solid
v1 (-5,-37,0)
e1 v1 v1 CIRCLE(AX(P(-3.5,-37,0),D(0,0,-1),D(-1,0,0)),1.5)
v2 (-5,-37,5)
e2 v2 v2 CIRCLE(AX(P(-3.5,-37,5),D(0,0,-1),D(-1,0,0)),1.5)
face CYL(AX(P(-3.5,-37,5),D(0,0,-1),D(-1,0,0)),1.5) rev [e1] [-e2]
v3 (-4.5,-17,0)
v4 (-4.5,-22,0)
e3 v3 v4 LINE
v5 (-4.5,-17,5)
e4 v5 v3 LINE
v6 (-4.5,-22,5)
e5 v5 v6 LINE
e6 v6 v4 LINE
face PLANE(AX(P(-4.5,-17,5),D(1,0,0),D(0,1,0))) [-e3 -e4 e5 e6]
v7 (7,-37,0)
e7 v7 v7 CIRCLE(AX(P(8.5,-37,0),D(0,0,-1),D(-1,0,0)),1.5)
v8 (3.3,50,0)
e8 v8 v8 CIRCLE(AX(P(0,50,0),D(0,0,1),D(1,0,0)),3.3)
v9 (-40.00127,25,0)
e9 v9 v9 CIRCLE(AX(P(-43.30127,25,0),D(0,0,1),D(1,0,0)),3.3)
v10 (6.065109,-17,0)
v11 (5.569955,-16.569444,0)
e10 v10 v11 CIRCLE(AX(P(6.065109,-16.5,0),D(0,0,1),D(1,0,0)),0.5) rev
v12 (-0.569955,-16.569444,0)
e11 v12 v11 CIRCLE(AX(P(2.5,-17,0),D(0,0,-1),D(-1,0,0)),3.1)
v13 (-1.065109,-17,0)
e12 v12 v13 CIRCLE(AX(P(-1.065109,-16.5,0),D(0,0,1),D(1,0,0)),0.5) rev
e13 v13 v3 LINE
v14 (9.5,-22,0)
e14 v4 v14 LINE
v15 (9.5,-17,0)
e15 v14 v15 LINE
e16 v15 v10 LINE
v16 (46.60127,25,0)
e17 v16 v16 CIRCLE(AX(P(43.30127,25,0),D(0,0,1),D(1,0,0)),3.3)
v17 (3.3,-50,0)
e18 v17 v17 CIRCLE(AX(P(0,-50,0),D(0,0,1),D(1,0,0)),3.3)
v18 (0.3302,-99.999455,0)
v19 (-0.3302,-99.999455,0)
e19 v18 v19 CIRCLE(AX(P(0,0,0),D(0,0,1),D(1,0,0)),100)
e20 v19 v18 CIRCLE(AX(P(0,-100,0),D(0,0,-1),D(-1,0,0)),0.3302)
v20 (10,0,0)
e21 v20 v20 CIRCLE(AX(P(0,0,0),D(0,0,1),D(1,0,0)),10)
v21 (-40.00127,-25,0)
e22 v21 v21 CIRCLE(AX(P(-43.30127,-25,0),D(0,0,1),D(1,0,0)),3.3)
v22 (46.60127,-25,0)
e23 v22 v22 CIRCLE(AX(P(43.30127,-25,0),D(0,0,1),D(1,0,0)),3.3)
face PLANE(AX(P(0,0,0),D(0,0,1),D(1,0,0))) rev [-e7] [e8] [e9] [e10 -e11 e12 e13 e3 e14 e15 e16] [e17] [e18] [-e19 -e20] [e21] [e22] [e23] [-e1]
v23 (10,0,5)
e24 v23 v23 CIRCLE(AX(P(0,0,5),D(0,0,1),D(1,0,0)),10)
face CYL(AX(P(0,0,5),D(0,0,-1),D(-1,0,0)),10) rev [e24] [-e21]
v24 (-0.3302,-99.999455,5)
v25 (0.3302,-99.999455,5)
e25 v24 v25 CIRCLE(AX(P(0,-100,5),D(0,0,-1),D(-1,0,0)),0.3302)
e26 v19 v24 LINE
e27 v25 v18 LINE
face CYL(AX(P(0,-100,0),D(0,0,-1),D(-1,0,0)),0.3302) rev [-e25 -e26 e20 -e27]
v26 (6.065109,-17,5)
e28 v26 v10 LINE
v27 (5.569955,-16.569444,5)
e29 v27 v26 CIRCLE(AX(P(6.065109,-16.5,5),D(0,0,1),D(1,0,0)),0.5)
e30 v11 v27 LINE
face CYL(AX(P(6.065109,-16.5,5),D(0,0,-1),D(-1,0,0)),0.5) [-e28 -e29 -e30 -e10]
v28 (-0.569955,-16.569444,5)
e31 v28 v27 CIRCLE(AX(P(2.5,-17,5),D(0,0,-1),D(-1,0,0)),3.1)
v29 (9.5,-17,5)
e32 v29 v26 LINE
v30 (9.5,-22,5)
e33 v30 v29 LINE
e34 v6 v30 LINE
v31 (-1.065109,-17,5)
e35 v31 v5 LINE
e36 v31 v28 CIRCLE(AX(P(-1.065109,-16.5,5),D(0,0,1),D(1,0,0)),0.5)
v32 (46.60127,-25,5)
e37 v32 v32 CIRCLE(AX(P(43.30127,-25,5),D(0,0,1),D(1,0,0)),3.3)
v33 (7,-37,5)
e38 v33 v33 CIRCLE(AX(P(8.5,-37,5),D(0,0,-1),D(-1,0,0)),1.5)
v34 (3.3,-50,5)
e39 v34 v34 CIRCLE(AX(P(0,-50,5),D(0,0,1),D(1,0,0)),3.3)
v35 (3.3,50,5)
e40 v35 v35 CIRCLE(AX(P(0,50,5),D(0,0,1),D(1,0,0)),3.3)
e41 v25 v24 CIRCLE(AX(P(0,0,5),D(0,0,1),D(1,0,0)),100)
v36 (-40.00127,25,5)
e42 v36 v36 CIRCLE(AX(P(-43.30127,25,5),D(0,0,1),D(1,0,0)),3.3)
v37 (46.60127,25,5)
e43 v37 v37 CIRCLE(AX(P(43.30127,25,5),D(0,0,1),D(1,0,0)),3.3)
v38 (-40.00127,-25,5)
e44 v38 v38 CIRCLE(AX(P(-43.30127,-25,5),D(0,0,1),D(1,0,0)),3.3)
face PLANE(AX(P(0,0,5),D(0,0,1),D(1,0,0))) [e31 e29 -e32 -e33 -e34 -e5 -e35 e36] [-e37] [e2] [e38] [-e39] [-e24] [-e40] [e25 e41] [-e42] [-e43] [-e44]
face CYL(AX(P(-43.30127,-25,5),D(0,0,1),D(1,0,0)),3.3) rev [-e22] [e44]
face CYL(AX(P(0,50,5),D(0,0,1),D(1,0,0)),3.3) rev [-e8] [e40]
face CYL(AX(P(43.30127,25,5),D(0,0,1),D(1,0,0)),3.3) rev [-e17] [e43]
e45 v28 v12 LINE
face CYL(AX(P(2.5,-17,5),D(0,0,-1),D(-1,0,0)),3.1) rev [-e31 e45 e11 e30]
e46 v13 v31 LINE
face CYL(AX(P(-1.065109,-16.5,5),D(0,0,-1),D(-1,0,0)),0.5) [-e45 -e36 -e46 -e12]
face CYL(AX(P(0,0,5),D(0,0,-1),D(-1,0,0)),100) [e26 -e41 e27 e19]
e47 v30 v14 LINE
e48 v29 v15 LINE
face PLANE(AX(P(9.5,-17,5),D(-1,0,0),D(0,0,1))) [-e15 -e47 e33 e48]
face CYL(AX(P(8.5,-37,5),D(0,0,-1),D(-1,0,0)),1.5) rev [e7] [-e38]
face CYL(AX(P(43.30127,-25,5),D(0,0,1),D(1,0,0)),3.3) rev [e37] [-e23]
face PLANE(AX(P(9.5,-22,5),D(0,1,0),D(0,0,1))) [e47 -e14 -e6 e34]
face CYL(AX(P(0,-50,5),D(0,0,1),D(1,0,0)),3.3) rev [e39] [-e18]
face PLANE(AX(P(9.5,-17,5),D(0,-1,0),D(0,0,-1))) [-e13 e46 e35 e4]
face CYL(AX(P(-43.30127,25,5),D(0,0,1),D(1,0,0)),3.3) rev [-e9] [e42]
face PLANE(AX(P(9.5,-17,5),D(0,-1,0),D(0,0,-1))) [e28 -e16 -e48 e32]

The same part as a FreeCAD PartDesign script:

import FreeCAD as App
import Part
import Sketcher
from FreeCAD import Vector


def edges_at(feature, points):
    """Names of the edges that pass closest to the given points."""
    edges = feature.Shape.Edges
    near = lambda p: min(range(len(edges)), key=lambda i: edges[i].distToShape(Part.Vertex(*p))[0])
    return sorted({f"Edge{near(p) + 1}" for p in points})


def add_polygon(sketch, points):
    """Adds a closed chain of lines whose ends are joined by coincident constraints."""
    first, n = sketch.GeometryCount, len(points)
    for a, b in zip(points, points[1:] + points[:1]):
        sketch.addGeometry(Part.LineSegment(App.Vector(*a, 0), App.Vector(*b, 0)), False)
    for i in range(n):
        sketch.addConstraint(Sketcher.Constraint("Coincident", first + i, 2, first + (i + 1) % n, 1))

doc = App.newDocument("Part")
body = doc.addObject("PartDesign::Body", "Body")

# Sketch on XY plane
sketch1 = body.newObject("Sketcher::SketchObject", "Sketch")
sketch1.AttachmentSupport = (doc.getObject("XY_Plane"), [""])
sketch1.MapMode = "FlatFace"
sketch1.addGeometry(Part.Circle(Vector(0, 0, 0), Vector(0, 0, 1), 100), False)
sketch1.addConstraint(Sketcher.Constraint("Coincident", 0, 3, -1, 1))
sketch1.addConstraint(Sketcher.Constraint("Diameter", 0, 200.0))
pad1 = body.newObject("PartDesign::Pad", "Pad")
pad1.Profile = sketch1
pad1.Length = 5

# Sketch on XY plane
sketch2 = body.newObject("Sketcher::SketchObject", "Sketch001")
sketch2.AttachmentSupport = (doc.getObject("XY_Plane"), [""])
sketch2.MapMode = "FlatFace"
sketch2.addGeometry(Part.Circle(Vector(0, 50, 0), Vector(0, 0, 1), 3), False)
sketch2.addConstraint(Sketcher.Constraint("PointOnObject", 0, 3, -2))
sketch2.addConstraint(Sketcher.Constraint("Diameter", 0, 6.0))
sketch2.addConstraint(Sketcher.Constraint("DistanceY", -1, 1, 0, 3, 50.0))
pocket1 = body.newObject("PartDesign::Pocket", "Pocket")
pocket1.Profile = sketch2
pocket1.Type = "ThroughAll"
pocket1.Reversed = True
doc.recompute()

polarpattern = body.newObject("PartDesign::PolarPattern", "PolarPattern")
polarpattern.Originals = [pocket1]
polarpattern.Axis = (doc.getObject("Z_Axis"), [""])
polarpattern.Angle = 360
polarpattern.Occurrences = 6
body.Tip = polarpattern

# Sketch on XY plane
sketch3 = body.newObject("Sketcher::SketchObject", "Sketch002")
sketch3.AttachmentSupport = (doc.getObject("XY_Plane"), [""])
sketch3.MapMode = "FlatFace"
sketch3.AttachmentOffset = App.Placement(Vector(0, 0, 5), App.Rotation())
sketch3.addGeometry(Part.Circle(Vector(0, 50, 0), Vector(0, 0, 1), 3.3), False)
sketch3.addGeometry(Part.Circle(Vector(43.3, 25, 0), Vector(0, 0, 1), 3.3), False)
sketch3.addGeometry(Part.Circle(Vector(43.3, -25, 0), Vector(0, 0, 1), 3.3), False)
sketch3.addGeometry(Part.Circle(Vector(0, -50, 0), Vector(0, 0, 1), 3.3), False)
sketch3.addGeometry(Part.Circle(Vector(-43.3, -25, 0), Vector(0, 0, 1), 3.3), False)
sketch3.addGeometry(Part.Circle(Vector(-43.3, 25, 0), Vector(0, 0, 1), 3.3), False)
sketch3.addConstraint(Sketcher.Constraint("Equal", 0, 1))
sketch3.addConstraint(Sketcher.Constraint("Equal", 1, 2))
sketch3.addConstraint(Sketcher.Constraint("Equal", 2, 3))
sketch3.addConstraint(Sketcher.Constraint("Equal", 3, 4))
sketch3.addConstraint(Sketcher.Constraint("Equal", 4, 5))
sketch3.addConstraint(Sketcher.Constraint("Symmetric", 0, 3, 3, 3, -1, 1))
sketch3.addConstraint(Sketcher.Constraint("Symmetric", 1, 3, 4, 3, -1, 1))
sketch3.addConstraint(Sketcher.Constraint("Symmetric", 2, 3, 5, 3, -1, 1))
sketch3.addConstraint(Sketcher.Constraint("Symmetric", 2, 3, 4, 3, -2))
sketch3.addConstraint(Sketcher.Constraint("PointOnObject", 0, 3, -2))
sketch3.addConstraint(Sketcher.Constraint("Diameter", 0, 6.6))
sketch3.addConstraint(Sketcher.Constraint("DistanceY", -1, 1, 0, 3, 50.0))
sketch3.addConstraint(Sketcher.Constraint("DistanceY", -1, 1, 1, 3, 25.0))
sketch3.addConstraint(Sketcher.Constraint("DistanceX", -1, 1, 1, 3, 43.30127))
doc.recompute()
hole = body.newObject("PartDesign::Hole", "Hole")
hole.Profile = sketch3
hole.ThreadType = "None"
hole.Diameter = 6.6
hole.DepthType = "ThroughAll"

# Sketch on XY plane
sketch4 = body.newObject("Sketcher::SketchObject", "Sketch003")
sketch4.AttachmentSupport = (doc.getObject("XY_Plane"), [""])
sketch4.MapMode = "FlatFace"
add_polygon(sketch4, [(-4, -17), (-4, -22), (10, -22), (10, -17)])  # lines 0-3
sketch4.addConstraint(Sketcher.Constraint("Vertical", 0))
sketch4.addConstraint(Sketcher.Constraint("Horizontal", 1))
sketch4.addConstraint(Sketcher.Constraint("Vertical", 2))
sketch4.addConstraint(Sketcher.Constraint("Horizontal", 3))
sketch4.addConstraint(Sketcher.Constraint("DistanceX", 1, 1, 1, 2, 14.0))
sketch4.addConstraint(Sketcher.Constraint("DistanceY", 0, 2, 0, 1, 5.0))
sketch4.addConstraint(Sketcher.Constraint("DistanceY", 0, 2, -1, 1, 22.0))
sketch4.addConstraint(Sketcher.Constraint("DistanceX", 0, 2, -1, 1, 4.5))
pocket2 = body.newObject("PartDesign::Pocket", "Pocket001")
pocket2.Profile = sketch4
pocket2.Type = "ThroughAll"
pocket2.Reversed = True

# Sketch on XY plane
sketch5 = body.newObject("Sketcher::SketchObject", "Sketch004")
sketch5.AttachmentSupport = (doc.getObject("XY_Plane"), [""])
sketch5.MapMode = "FlatFace"
sketch5.addGeometry(Part.Circle(Vector(2.5, 4, 0), Vector(0, 0, 1), 1), False)
sketch5.addGeometry(Part.Circle(Vector(2.5, -17, 0), Vector(0, 0, 1), 3.1), False)
sketch5.addConstraint(Sketcher.Constraint("Vertical", 0, 3, 1, 3))
sketch5.addConstraint(Sketcher.Constraint("Diameter", 0, 2.0))
sketch5.addConstraint(Sketcher.Constraint("Diameter", 1, 6.2))
sketch5.addConstraint(Sketcher.Constraint("DistanceY", -1, 1, 0, 3, 4.0))
sketch5.addConstraint(Sketcher.Constraint("DistanceY", 1, 3, -1, 1, 17.0))
sketch5.addConstraint(Sketcher.Constraint("DistanceX", -1, 1, 0, 3, 2.5))
pocket3 = body.newObject("PartDesign::Pocket", "Pocket002")
pocket3.Profile = sketch5
pocket3.Type = "ThroughAll"
pocket3.Reversed = True

# Sketch on XY plane
sketch6 = body.newObject("Sketcher::SketchObject", "Sketch005")
sketch6.AttachmentSupport = (doc.getObject("XY_Plane"), [""])
sketch6.MapMode = "FlatFace"
sketch6.addGeometry(Part.Circle(Vector(2.5, 4, 0), Vector(0, 0, 1), 0.33), False)
sketch6.addGeometry(Part.Circle(Vector(0, 0, 0), Vector(0, 0, 1), 0.33), False)
sketch6.addGeometry(Part.Circle(Vector(0, -100, 0), Vector(0, 0, 1), 0.33), False)
sketch6.addConstraint(Sketcher.Constraint("Coincident", 1, 3, -1, 1))
sketch6.addConstraint(Sketcher.Constraint("Equal", 0, 1))
sketch6.addConstraint(Sketcher.Constraint("Equal", 1, 2))
sketch6.addConstraint(Sketcher.Constraint("PointOnObject", 2, 3, -2))
sketch6.addConstraint(Sketcher.Constraint("DistanceY", -1, 1, 0, 3, 4.0))
sketch6.addConstraint(Sketcher.Constraint("DistanceY", 2, 3, -1, 1, 100.0))
sketch6.addConstraint(Sketcher.Constraint("Diameter", 0, 0.6604))
sketch6.addConstraint(Sketcher.Constraint("DistanceX", -1, 1, 0, 3, 2.5))
doc.recompute()
hole2 = body.newObject("PartDesign::Hole", "Hole001")
hole2.Profile = sketch6
hole2.ThreadType = "None"
hole2.Diameter = 0.6604
hole2.DepthType = "ThroughAll"
hole2.Reversed = True
doc.recompute()

fillet = body.newObject("PartDesign::Fillet", "Fillet")
fillet.Base = (hole2, edges_at(hole2, [(5.6, -17, 2.5), (-0.6, -17, 2.5)]))
fillet.Radius = 0.5

# Sketch on XY plane
sketch7 = body.newObject("Sketcher::SketchObject", "Sketch006")
sketch7.AttachmentSupport = (doc.getObject("XY_Plane"), [""])
sketch7.MapMode = "FlatFace"
sketch7.addGeometry(Part.Circle(Vector(8.5, -37, 0), Vector(0, 0, 1), 1.5), False)
sketch7.addGeometry(Part.Circle(Vector(-3.5, -37, 0), Vector(0, 0, 1), 1.5), False)
sketch7.addConstraint(Sketcher.Constraint("Equal", 0, 1))
sketch7.addConstraint(Sketcher.Constraint("Horizontal", 0, 3, 1, 3))
sketch7.addConstraint(Sketcher.Constraint("Diameter", 0, 3.0))
sketch7.addConstraint(Sketcher.Constraint("DistanceY", 0, 3, -1, 1, 37.0))
sketch7.addConstraint(Sketcher.Constraint("DistanceX", 1, 3, 0, 3, 12.0))
sketch7.addConstraint(Sketcher.Constraint("DistanceX", -1, 1, 0, 3, 8.5))
pocket4 = body.newObject("PartDesign::Pocket", "Pocket003")
pocket4.Profile = sketch7
pocket4.Type = "ThroughAll"
pocket4.Reversed = True

# Sketch on XY plane
sketch8 = body.newObject("Sketcher::SketchObject", "Sketch007")
sketch8.AttachmentSupport = (doc.getObject("XY_Plane"), [""])
sketch8.MapMode = "FlatFace"
sketch8.addGeometry(Part.Circle(Vector(0, 0, 0), Vector(0, 0, 1), 10), False)
sketch8.addConstraint(Sketcher.Constraint("Coincident", 0, 3, -1, 1))
sketch8.addConstraint(Sketcher.Constraint("Diameter", 0, 20.0))
pocket5 = body.newObject("PartDesign::Pocket", "Pocket004")
pocket5.Profile = sketch8
pocket5.Type = "ThroughAll"
pocket5.Reversed = True

doc.recompute()
